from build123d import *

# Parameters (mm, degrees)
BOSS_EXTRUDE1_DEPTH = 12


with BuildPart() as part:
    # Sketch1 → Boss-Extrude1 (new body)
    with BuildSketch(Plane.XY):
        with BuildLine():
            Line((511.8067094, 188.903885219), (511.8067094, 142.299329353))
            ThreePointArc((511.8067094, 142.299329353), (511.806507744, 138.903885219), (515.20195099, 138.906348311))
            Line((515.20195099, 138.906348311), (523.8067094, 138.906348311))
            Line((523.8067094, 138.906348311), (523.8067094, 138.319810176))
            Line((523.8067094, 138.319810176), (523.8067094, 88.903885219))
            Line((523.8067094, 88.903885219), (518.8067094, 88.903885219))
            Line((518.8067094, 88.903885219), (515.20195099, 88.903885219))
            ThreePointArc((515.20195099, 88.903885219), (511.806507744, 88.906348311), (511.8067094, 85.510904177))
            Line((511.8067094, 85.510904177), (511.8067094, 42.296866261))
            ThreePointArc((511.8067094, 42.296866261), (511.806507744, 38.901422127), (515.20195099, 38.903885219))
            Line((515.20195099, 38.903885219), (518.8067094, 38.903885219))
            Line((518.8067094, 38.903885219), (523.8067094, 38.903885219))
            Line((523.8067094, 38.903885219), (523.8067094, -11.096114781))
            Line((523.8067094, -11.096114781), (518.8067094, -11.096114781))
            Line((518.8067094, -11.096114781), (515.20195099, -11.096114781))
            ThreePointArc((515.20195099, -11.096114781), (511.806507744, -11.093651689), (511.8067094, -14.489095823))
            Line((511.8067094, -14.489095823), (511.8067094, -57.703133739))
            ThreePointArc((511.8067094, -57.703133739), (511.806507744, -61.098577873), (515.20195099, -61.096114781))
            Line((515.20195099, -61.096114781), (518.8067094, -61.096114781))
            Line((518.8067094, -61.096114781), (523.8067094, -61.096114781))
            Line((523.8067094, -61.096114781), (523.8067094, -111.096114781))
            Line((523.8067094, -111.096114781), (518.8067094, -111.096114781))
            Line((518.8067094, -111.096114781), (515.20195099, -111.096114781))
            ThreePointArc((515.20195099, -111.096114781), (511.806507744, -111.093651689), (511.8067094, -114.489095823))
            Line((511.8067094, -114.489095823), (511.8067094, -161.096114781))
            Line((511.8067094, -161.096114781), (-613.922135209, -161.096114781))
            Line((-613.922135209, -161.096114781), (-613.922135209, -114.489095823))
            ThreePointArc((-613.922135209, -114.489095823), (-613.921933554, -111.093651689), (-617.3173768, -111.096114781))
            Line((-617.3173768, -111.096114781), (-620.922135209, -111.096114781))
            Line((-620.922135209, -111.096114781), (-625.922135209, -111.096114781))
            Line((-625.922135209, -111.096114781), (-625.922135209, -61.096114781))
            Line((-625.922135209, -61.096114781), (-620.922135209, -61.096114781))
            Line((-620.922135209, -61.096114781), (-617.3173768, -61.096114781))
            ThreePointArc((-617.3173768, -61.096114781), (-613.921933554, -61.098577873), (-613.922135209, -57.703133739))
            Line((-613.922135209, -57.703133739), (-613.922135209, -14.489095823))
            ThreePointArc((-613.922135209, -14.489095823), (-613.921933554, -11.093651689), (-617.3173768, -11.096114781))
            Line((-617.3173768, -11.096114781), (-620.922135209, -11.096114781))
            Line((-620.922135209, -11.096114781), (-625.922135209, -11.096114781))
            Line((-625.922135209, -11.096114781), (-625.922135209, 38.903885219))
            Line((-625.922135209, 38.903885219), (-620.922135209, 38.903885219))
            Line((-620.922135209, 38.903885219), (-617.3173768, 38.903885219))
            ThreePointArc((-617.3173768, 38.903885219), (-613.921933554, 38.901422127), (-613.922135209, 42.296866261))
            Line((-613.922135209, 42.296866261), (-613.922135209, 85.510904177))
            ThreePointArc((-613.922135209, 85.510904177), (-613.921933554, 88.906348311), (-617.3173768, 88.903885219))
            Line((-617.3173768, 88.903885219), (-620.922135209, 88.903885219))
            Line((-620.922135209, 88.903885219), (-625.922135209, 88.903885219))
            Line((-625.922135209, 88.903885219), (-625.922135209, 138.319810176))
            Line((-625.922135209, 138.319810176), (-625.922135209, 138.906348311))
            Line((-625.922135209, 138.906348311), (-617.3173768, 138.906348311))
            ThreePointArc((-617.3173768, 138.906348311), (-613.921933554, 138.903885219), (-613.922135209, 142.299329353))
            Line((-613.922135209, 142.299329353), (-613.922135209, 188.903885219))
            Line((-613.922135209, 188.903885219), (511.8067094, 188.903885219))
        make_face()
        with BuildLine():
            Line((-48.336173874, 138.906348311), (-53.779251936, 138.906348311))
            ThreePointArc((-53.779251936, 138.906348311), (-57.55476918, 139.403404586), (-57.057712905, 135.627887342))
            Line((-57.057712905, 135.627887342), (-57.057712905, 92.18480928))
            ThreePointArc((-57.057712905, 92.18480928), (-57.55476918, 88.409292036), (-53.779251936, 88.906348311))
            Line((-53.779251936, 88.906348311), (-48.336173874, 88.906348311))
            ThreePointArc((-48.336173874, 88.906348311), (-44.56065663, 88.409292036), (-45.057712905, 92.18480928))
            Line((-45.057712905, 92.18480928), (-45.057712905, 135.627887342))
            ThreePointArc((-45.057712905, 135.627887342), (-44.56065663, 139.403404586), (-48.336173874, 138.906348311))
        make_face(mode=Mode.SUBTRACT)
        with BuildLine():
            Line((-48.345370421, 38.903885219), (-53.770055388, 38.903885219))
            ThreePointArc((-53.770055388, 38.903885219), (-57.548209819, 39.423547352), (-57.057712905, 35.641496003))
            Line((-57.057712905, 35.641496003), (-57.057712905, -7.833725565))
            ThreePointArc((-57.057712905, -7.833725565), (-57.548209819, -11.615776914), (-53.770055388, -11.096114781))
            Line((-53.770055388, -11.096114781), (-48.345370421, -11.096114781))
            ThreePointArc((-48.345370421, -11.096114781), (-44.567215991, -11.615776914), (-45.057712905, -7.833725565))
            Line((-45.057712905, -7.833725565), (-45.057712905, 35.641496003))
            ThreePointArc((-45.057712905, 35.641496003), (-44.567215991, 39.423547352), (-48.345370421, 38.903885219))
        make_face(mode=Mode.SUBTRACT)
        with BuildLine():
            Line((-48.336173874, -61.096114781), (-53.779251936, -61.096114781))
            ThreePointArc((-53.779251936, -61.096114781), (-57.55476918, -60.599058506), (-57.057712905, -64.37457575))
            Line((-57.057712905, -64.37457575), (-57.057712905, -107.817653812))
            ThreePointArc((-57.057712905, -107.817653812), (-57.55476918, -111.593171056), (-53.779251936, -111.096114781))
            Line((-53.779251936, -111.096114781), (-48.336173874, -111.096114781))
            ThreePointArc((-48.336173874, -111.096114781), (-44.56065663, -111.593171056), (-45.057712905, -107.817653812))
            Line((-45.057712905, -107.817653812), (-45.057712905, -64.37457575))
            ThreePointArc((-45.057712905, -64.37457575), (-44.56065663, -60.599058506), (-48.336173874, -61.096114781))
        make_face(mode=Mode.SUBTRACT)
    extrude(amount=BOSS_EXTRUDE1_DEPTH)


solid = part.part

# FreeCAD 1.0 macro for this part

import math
import FreeCAD as App
import Part
import Sketcher

V = App.Vector

doc = App.newDocument("Part")
body = doc.addObject("PartDesign::Body", "Body")

# Sketch on XY plane
sketch1 = body.newObject("Sketcher::SketchObject", "Sketch")
sketch1.AttachmentSupport = (doc.getObject("XY_Plane"), [""])
sketch1.MapMode = "FlatFace"
sketch1.addGeometry([
    Part.LineSegment(V(511.806709, 142.299329, 0), V(511.806709, 188.903885, 0)),  # 0
    Part.LineSegment(V(511.806709, 188.903885, 0), V(-613.922135, 188.903885, 0)),  # 1
    Part.LineSegment(V(-613.922135, 188.903885, 0), V(-613.922135, 142.299329, 0)),  # 2
    Part.ArcOfCircle(Part.Circle(V(-615.618425, 140.601507, 0), V(0, 0, 1), 2.4), math.radians(-135.064046), math.radians(45.025886)),  # 3
    Part.LineSegment(V(-617.317377, 138.906348, 0), V(-625.922135, 138.906348, 0)),  # 4
    Part.LineSegment(V(-625.922135, 138.906348, 0), V(-625.922135, 88.903885, 0)),  # 5
    Part.LineSegment(V(-625.922135, 88.903885, 0), V(-617.317377, 88.903885, 0)),  # 6
    Part.ArcOfCircle(Part.Circle(V(-615.618425, 87.208727, 0), V(0, 0, 1), 2.4), math.radians(-45.025886), math.radians(135.064046)),  # 7
    Part.LineSegment(V(-613.922135, 85.510904, 0), V(-613.922135, 42.296866, 0)),  # 8
    Part.ArcOfCircle(Part.Circle(V(-615.618425, 40.599043, 0), V(0, 0, 1), 2.4), math.radians(-135.064046), math.radians(45.025886)),  # 9
    Part.LineSegment(V(-617.317377, 38.903885, 0), V(-625.922135, 38.903885, 0)),  # 10
    Part.LineSegment(V(-625.922135, 38.903885, 0), V(-625.922135, -11.096115, 0)),  # 11
    Part.LineSegment(V(-625.922135, -11.096115, 0), V(-617.317377, -11.096115, 0)),  # 12
    Part.ArcOfCircle(Part.Circle(V(-615.618425, -12.791273, 0), V(0, 0, 1), 2.4), math.radians(-45.025886), math.radians(135.064046)),  # 13
    Part.LineSegment(V(-613.922135, -14.489096, 0), V(-613.922135, -57.703134, 0)),  # 14
    Part.ArcOfCircle(Part.Circle(V(-615.618425, -59.400957, 0), V(0, 0, 1), 2.4), math.radians(-135.064046), math.radians(45.025886)),  # 15
    Part.LineSegment(V(-617.317377, -61.096115, 0), V(-625.922135, -61.096115, 0)),  # 16
    Part.LineSegment(V(-625.922135, -61.096115, 0), V(-625.922135, -111.096115, 0)),  # 17
    Part.LineSegment(V(-625.922135, -111.096115, 0), V(-617.317377, -111.096115, 0)),  # 18
    Part.ArcOfCircle(Part.Circle(V(-615.618425, -112.791273, 0), V(0, 0, 1), 2.4), math.radians(-45.025886), math.radians(135.064046)),  # 19
    Part.LineSegment(V(-613.922135, -114.489096, 0), V(-613.922135, -161.096115, 0)),  # 20
    Part.LineSegment(V(-613.922135, -161.096115, 0), V(511.806709, -161.096115, 0)),  # 21
    Part.LineSegment(V(511.806709, -161.096115, 0), V(511.806709, -114.489096, 0)),  # 22
    Part.ArcOfCircle(Part.Circle(V(513.502999, -112.791273, 0), V(0, 0, 1), 2.4), math.radians(44.935954), math.radians(225.025886)),  # 23
    Part.LineSegment(V(515.201951, -111.096115, 0), V(523.806709, -111.096115, 0)),  # 24
    Part.LineSegment(V(523.806709, -111.096115, 0), V(523.806709, -61.096115, 0)),  # 25
    Part.LineSegment(V(523.806709, -61.096115, 0), V(515.201951, -61.096115, 0)),  # 26
    Part.ArcOfCircle(Part.Circle(V(513.502999, -59.400957, 0), V(0, 0, 1), 2.4), math.radians(134.974114), math.radians(315.064046)),  # 27
    Part.LineSegment(V(511.806709, -57.703134, 0), V(511.806709, -14.489096, 0)),  # 28
    Part.ArcOfCircle(Part.Circle(V(513.502999, -12.791273, 0), V(0, 0, 1), 2.4), math.radians(44.935954), math.radians(225.025886)),  # 29
    Part.LineSegment(V(515.201951, -11.096115, 0), V(523.806709, -11.096115, 0)),  # 30
    Part.LineSegment(V(523.806709, -11.096115, 0), V(523.806709, 38.903885, 0)),  # 31
    Part.LineSegment(V(523.806709, 38.903885, 0), V(515.201951, 38.903885, 0)),  # 32
    Part.ArcOfCircle(Part.Circle(V(513.502999, 40.599043, 0), V(0, 0, 1), 2.4), math.radians(134.974114), math.radians(315.064046)),  # 33
    Part.LineSegment(V(511.806709, 42.296866, 0), V(511.806709, 85.510904, 0)),  # 34
    Part.ArcOfCircle(Part.Circle(V(513.502999, 87.208727, 0), V(0, 0, 1), 2.4), math.radians(44.935954), math.radians(225.025886)),  # 35
    Part.LineSegment(V(515.201951, 88.903885, 0), V(523.806709, 88.903885, 0)),  # 36
    Part.LineSegment(V(523.806709, 88.903885, 0), V(523.806709, 138.906348, 0)),  # 37
    Part.LineSegment(V(523.806709, 138.906348, 0), V(515.201951, 138.906348, 0)),  # 38
    Part.ArcOfCircle(Part.Circle(V(513.502999, 140.601507, 0), V(0, 0, 1), 2.4), math.radians(134.974114), math.radians(315.064046)),  # 39
    Part.ArcOfCircle(Part.Circle(V(-46.257713, 37.719957, 0), V(0, 0, 1), 2.4), math.radians(-60), math.radians(150.442061)),  # 40
    Part.LineSegment(V(-45.057713, 35.641496, 0), V(-45.057713, -7.833726, 0)),  # 41
    Part.ArcOfCircle(Part.Circle(V(-46.257713, -9.912187, 0), V(0, 0, 1), 2.4), math.radians(-150.442061), math.radians(60)),  # 42
    Part.LineSegment(V(-48.34537, -11.096115, 0), V(-53.770055, -11.096115, 0)),  # 43
    Part.ArcOfCircle(Part.Circle(V(-55.857713, -9.912187, 0), V(0, 0, 1), 2.4), math.radians(120), math.radians(330.442061)),  # 44
    Part.LineSegment(V(-57.057713, -7.833726, 0), V(-57.057713, 35.641496, 0)),  # 45
    Part.ArcOfCircle(Part.Circle(V(-55.857713, 37.719957, 0), V(0, 0, 1), 2.4), math.radians(29.557939), math.radians(240)),  # 46
    Part.LineSegment(V(-53.770055, 38.903885, 0), V(-48.34537, 38.903885, 0)),  # 47
    Part.ArcOfCircle(Part.Circle(V(-46.257713, -62.296115, 0), V(0, 0, 1), 2.4), math.radians(-60), math.radians(150)),  # 48
    Part.LineSegment(V(-45.057713, -64.374576, 0), V(-45.057713, -107.817654, 0)),  # 49
    Part.ArcOfCircle(Part.Circle(V(-46.257713, -109.896115, 0), V(0, 0, 1), 2.4), math.radians(-150), math.radians(60)),  # 50
    Part.LineSegment(V(-48.336174, -111.096115, 0), V(-53.779252, -111.096115, 0)),  # 51
    Part.ArcOfCircle(Part.Circle(V(-55.857713, -109.896115, 0), V(0, 0, 1), 2.4), math.radians(120), math.radians(330)),  # 52
    Part.LineSegment(V(-57.057713, -107.817654, 0), V(-57.057713, -64.374576, 0)),  # 53
    Part.ArcOfCircle(Part.Circle(V(-55.857713, -62.296115, 0), V(0, 0, 1), 2.4), math.radians(30), math.radians(240)),  # 54
    Part.LineSegment(V(-53.779252, -61.096115, 0), V(-48.336174, -61.096115, 0)),  # 55
    Part.ArcOfCircle(Part.Circle(V(-46.257713, 137.706348, 0), V(0, 0, 1), 2.4), math.radians(-60), math.radians(150)),  # 56
    Part.LineSegment(V(-45.057713, 135.627887, 0), V(-45.057713, 92.184809, 0)),  # 57
    Part.ArcOfCircle(Part.Circle(V(-46.257713, 90.106348, 0), V(0, 0, 1), 2.4), math.radians(-150), math.radians(60)),  # 58
    Part.LineSegment(V(-48.336174, 88.906348, 0), V(-53.779252, 88.906348, 0)),  # 59
    Part.ArcOfCircle(Part.Circle(V(-55.857713, 90.106348, 0), V(0, 0, 1), 2.4), math.radians(120), math.radians(330)),  # 60
    Part.LineSegment(V(-57.057713, 92.184809, 0), V(-57.057713, 135.627887, 0)),  # 61
    Part.ArcOfCircle(Part.Circle(V(-55.857713, 137.706348, 0), V(0, 0, 1), 2.4), math.radians(30), math.radians(240)),  # 62
    Part.LineSegment(V(-53.779252, 138.906348, 0), V(-48.336174, 138.906348, 0)),  # 63
], False)
sketch1.addConstraint([
    Sketcher.Constraint("Coincident", 0, 2, 1, 1),
    Sketcher.Constraint("Coincident", 1, 2, 2, 1),
    Sketcher.Constraint("Coincident", 2, 2, 3, 2),
    Sketcher.Constraint("Coincident", 3, 1, 4, 1),
    Sketcher.Constraint("Coincident", 4, 2, 5, 1),
    Sketcher.Constraint("Coincident", 5, 2, 6, 1),
    Sketcher.Constraint("Coincident", 6, 2, 7, 2),
    Sketcher.Constraint("Coincident", 7, 1, 8, 1),
    Sketcher.Constraint("Coincident", 8, 2, 9, 2),
    Sketcher.Constraint("Coincident", 9, 1, 10, 1),
    Sketcher.Constraint("Coincident", 10, 2, 11, 1),
    Sketcher.Constraint("Coincident", 11, 2, 12, 1),
    Sketcher.Constraint("Coincident", 12, 2, 13, 2),
    Sketcher.Constraint("Coincident", 13, 1, 14, 1),
    Sketcher.Constraint("Coincident", 14, 2, 15, 2),
    Sketcher.Constraint("Coincident", 15, 1, 16, 1),
    Sketcher.Constraint("Coincident", 16, 2, 17, 1),
    Sketcher.Constraint("Coincident", 17, 2, 18, 1),
    Sketcher.Constraint("Coincident", 18, 2, 19, 2),
    Sketcher.Constraint("Coincident", 19, 1, 20, 1),
    Sketcher.Constraint("Coincident", 20, 2, 21, 1),
    Sketcher.Constraint("Coincident", 21, 2, 22, 1),
    Sketcher.Constraint("Coincident", 22, 2, 23, 2),
    Sketcher.Constraint("Coincident", 23, 1, 24, 1),
    Sketcher.Constraint("Coincident", 24, 2, 25, 1),
    Sketcher.Constraint("Coincident", 25, 2, 26, 1),
    Sketcher.Constraint("Coincident", 26, 2, 27, 2),
    Sketcher.Constraint("Coincident", 27, 1, 28, 1),
    Sketcher.Constraint("Coincident", 28, 2, 29, 2),
    Sketcher.Constraint("Coincident", 29, 1, 30, 1),
    Sketcher.Constraint("Coincident", 30, 2, 31, 1),
    Sketcher.Constraint("Coincident", 31, 2, 32, 1),
    Sketcher.Constraint("Coincident", 32, 2, 33, 2),
    Sketcher.Constraint("Coincident", 33, 1, 34, 1),
    Sketcher.Constraint("Coincident", 34, 2, 35, 2),
    Sketcher.Constraint("Coincident", 35, 1, 36, 1),
    Sketcher.Constraint("Coincident", 36, 2, 37, 1),
    Sketcher.Constraint("Coincident", 37, 2, 38, 1),
    Sketcher.Constraint("Coincident", 38, 2, 39, 2),
    Sketcher.Constraint("Coincident", 39, 1, 0, 1),
    Sketcher.Constraint("Coincident", 40, 1, 41, 1),
    Sketcher.Constraint("Coincident", 41, 2, 42, 2),
    Sketcher.Constraint("Coincident", 42, 1, 43, 1),
    Sketcher.Constraint("Coincident", 43, 2, 44, 2),
    Sketcher.Constraint("Coincident", 44, 1, 45, 1),
    Sketcher.Constraint("Coincident", 45, 2, 46, 2),
    Sketcher.Constraint("Coincident", 46, 1, 47, 1),
    Sketcher.Constraint("Coincident", 47, 2, 40, 2),
    Sketcher.Constraint("Coincident", 48, 1, 49, 1),
    Sketcher.Constraint("Coincident", 49, 2, 50, 2),
    Sketcher.Constraint("Coincident", 50, 1, 51, 1),
    Sketcher.Constraint("Coincident", 51, 2, 52, 2),
    Sketcher.Constraint("Coincident", 52, 1, 53, 1),
    Sketcher.Constraint("Coincident", 53, 2, 54, 2),
    Sketcher.Constraint("Coincident", 54, 1, 55, 1),
    Sketcher.Constraint("Coincident", 55, 2, 48, 2),
    Sketcher.Constraint("Coincident", 56, 1, 57, 1),
    Sketcher.Constraint("Coincident", 57, 2, 58, 2),
    Sketcher.Constraint("Coincident", 58, 1, 59, 1),
    Sketcher.Constraint("Coincident", 59, 2, 60, 2),
    Sketcher.Constraint("Coincident", 60, 1, 61, 1),
    Sketcher.Constraint("Coincident", 61, 2, 62, 2),
    Sketcher.Constraint("Coincident", 62, 1, 63, 1),
    Sketcher.Constraint("Coincident", 63, 2, 56, 2),
    Sketcher.Constraint("Vertical", 0),
    Sketcher.Constraint("Horizontal", 1),
    Sketcher.Constraint("Vertical", 2),
    Sketcher.Constraint("Horizontal", 4),
    Sketcher.Constraint("Vertical", 5),
    Sketcher.Constraint("Horizontal", 6),
    Sketcher.Constraint("Vertical", 8),
    Sketcher.Constraint("Horizontal", 10),
    Sketcher.Constraint("Vertical", 11),
    Sketcher.Constraint("Horizontal", 12),
    Sketcher.Constraint("Vertical", 14),
    Sketcher.Constraint("Horizontal", 16),
    Sketcher.Constraint("Vertical", 17),
    Sketcher.Constraint("Horizontal", 18),
    Sketcher.Constraint("Vertical", 20),
    Sketcher.Constraint("Horizontal", 21),
    Sketcher.Constraint("Vertical", 22),
    Sketcher.Constraint("Horizontal", 24),
    Sketcher.Constraint("Vertical", 25),
    Sketcher.Constraint("Horizontal", 26),
    Sketcher.Constraint("Vertical", 28),
    Sketcher.Constraint("Horizontal", 30),
    Sketcher.Constraint("Vertical", 31),
    Sketcher.Constraint("Horizontal", 32),
    Sketcher.Constraint("Vertical", 34),
    Sketcher.Constraint("Horizontal", 36),
    Sketcher.Constraint("Vertical", 37),
    Sketcher.Constraint("Horizontal", 38),
    Sketcher.Constraint("Vertical", 41),
    Sketcher.Constraint("Horizontal", 43),
    Sketcher.Constraint("Vertical", 45),
    Sketcher.Constraint("Horizontal", 47),
    Sketcher.Constraint("Vertical", 49),
    Sketcher.Constraint("Horizontal", 51),
    Sketcher.Constraint("Vertical", 53),
    Sketcher.Constraint("Horizontal", 55),
    Sketcher.Constraint("Vertical", 57),
    Sketcher.Constraint("Horizontal", 59),
    Sketcher.Constraint("Vertical", 61),
    Sketcher.Constraint("Horizontal", 63),
    Sketcher.Constraint("Radius", 3, 2.4),
    Sketcher.Constraint("Radius", 7, 2.4),
    Sketcher.Constraint("Radius", 9, 2.4),
    Sketcher.Constraint("Radius", 13, 2.4),
    Sketcher.Constraint("Radius", 15, 2.4),
    Sketcher.Constraint("Radius", 19, 2.4),
    Sketcher.Constraint("Radius", 23, 2.4),
    Sketcher.Constraint("Radius", 27, 2.4),
    Sketcher.Constraint("Radius", 29, 2.4),
    Sketcher.Constraint("Radius", 33, 2.4),
    Sketcher.Constraint("Radius", 35, 2.4),
    Sketcher.Constraint("Radius", 39, 2.4),
    Sketcher.Constraint("Radius", 40, 2.4),
    Sketcher.Constraint("Radius", 42, 2.4),
    Sketcher.Constraint("Radius", 44, 2.4),
    Sketcher.Constraint("Radius", 46, 2.4),
    Sketcher.Constraint("Radius", 48, 2.4),
    Sketcher.Constraint("Radius", 50, 2.4),
    Sketcher.Constraint("Radius", 52, 2.4),
    Sketcher.Constraint("Radius", 54, 2.4),
    Sketcher.Constraint("Radius", 56, 2.4),
    Sketcher.Constraint("Radius", 58, 2.4),
    Sketcher.Constraint("Radius", 60, 2.4),
    Sketcher.Constraint("Radius", 62, 2.4),
    Sketcher.Constraint("DistanceY", 11, 2, 11, 1, 50.0),
    Sketcher.Constraint("DistanceY", 17, 2, 17, 1, 50.0),
    Sketcher.Constraint("DistanceY", 25, 1, 25, 2, 50.0),
    Sketcher.Constraint("DistanceY", 31, 1, 31, 2, 50.0),
    Sketcher.Constraint("DistanceX", -1, 1, 23, 3, 513.502999),
    Sketcher.Constraint("DistanceX", -1, 1, 27, 3, 513.502999),
    Sketcher.Constraint("DistanceX", -1, 1, 29, 3, 513.502999),
    Sketcher.Constraint("DistanceX", -1, 1, 33, 3, 513.502999),
    Sketcher.Constraint("DistanceX", -1, 1, 35, 3, 513.502999),
    Sketcher.Constraint("DistanceX", -1, 1, 39, 3, 513.502999),
    Sketcher.Constraint("DistanceX", 4, 2, 4, 1, 8.604758),
    Sketcher.Constraint("DistanceX", 6, 1, 6, 2, 8.604758),
    Sketcher.Constraint("DistanceX", 10, 2, 10, 1, 8.604758),
    Sketcher.Constraint("DistanceX", 12, 1, 12, 2, 8.604758),
    Sketcher.Constraint("DistanceX", 16, 2, 16, 1, 8.604758),
    Sketcher.Constraint("DistanceX", 18, 1, 18, 2, 8.604758),
    Sketcher.Constraint("DistanceX", 24, 1, 24, 2, 8.604758),
    Sketcher.Constraint("DistanceX", 26, 2, 26, 1, 8.604758),
    Sketcher.Constraint("DistanceX", 30, 1, 30, 2, 8.604758),
    Sketcher.Constraint("DistanceX", 32, 2, 32, 1, 8.604758),
    Sketcher.Constraint("DistanceX", 36, 1, 36, 2, 8.604758),
    Sketcher.Constraint("DistanceX", 38, 2, 38, 1, 8.604758),
    Sketcher.Constraint("DistanceX", 51, 2, 51, 1, 5.443078),
    Sketcher.Constraint("DistanceX", 55, 1, 55, 2, 5.443078),
    Sketcher.Constraint("DistanceX", 59, 2, 59, 1, 5.443078),
    Sketcher.Constraint("DistanceX", 63, 1, 63, 2, 5.443078),
    Sketcher.Constraint("DistanceY", 20, 2, 20, 1, 46.607019),
    Sketcher.Constraint("DistanceY", 22, 1, 22, 2, 46.607019),
    Sketcher.Constraint("DistanceY", 41, 2, 41, 1, 43.475222),
    Sketcher.Constraint("DistanceY", 45, 1, 45, 2, 43.475222),
    Sketcher.Constraint("DistanceY", 49, 2, 49, 1, 43.443078),
    Sketcher.Constraint("DistanceY", 53, 1, 53, 2, 43.443078),
    Sketcher.Constraint("DistanceY", 57, 2, 57, 1, 43.443078),
    Sketcher.Constraint("DistanceY", 61, 1, 61, 2, 43.443078),
    Sketcher.Constraint("DistanceX", 1, 2, 1, 1, 1125.728845),
    Sketcher.Constraint("DistanceX", 21, 1, 21, 2, 1125.728845),
    Sketcher.Constraint("DistanceX", 43, 2, 43, 1, 5.424685),
    Sketcher.Constraint("DistanceX", 47, 1, 47, 2, 5.424685),
    Sketcher.Constraint("DistanceY", 0, 1, 0, 2, 46.604556),
    Sketcher.Constraint("DistanceY", 2, 2, 2, 1, 46.604556),
    Sketcher.Constraint("DistanceY", 5, 2, 5, 1, 50.002463),
    Sketcher.Constraint("DistanceY", 8, 2, 8, 1, 43.214038),
    Sketcher.Constraint("DistanceY", 14, 2, 14, 1, 43.214038),
    Sketcher.Constraint("DistanceY", 28, 1, 28, 2, 43.214038),
    Sketcher.Constraint("DistanceY", 34, 1, 34, 2, 43.214038),
    Sketcher.Constraint("DistanceY", 37, 1, 37, 2, 50.002463),
    Sketcher.Constraint("DistanceY", -1, 1, 56, 3, 137.706348),
    Sketcher.Constraint("DistanceY", -1, 1, 58, 3, 90.106348),
    Sketcher.Constraint("DistanceY", -1, 1, 60, 3, 90.106348),
    Sketcher.Constraint("DistanceY", -1, 1, 62, 3, 137.706348),
    Sketcher.Constraint("DistanceX", -1, 1, 0, 2, 511.806709),
    Sketcher.Constraint("DistanceY", -1, 1, 2, 2, 142.299329),
    Sketcher.Constraint("DistanceY", -1, 1, 3, 1, 138.906348),
    Sketcher.Constraint("DistanceX", -1, 1, 21, 2, 511.806709),
    Sketcher.Constraint("DistanceX", -1, 1, 23, 1, 515.201951),
    Sketcher.Constraint("DistanceX", -1, 1, 27, 1, 511.806709),
    Sketcher.Constraint("DistanceX", -1, 1, 29, 1, 515.201951),
    Sketcher.Constraint("DistanceX", -1, 1, 33, 1, 511.806709),
    Sketcher.Constraint("DistanceX", -1, 1, 35, 1, 515.201951),
    Sketcher.Constraint("DistanceX", 42, 1, -1, 1, 48.34537),
    Sketcher.Constraint("DistanceX", 47, 2, -1, 1, 48.34537),
    Sketcher.Constraint("DistanceX", 51, 2, -1, 1, 53.779252),
    Sketcher.Constraint("DistanceX", 54, 1, -1, 1, 53.779252),
    Sketcher.Constraint("DistanceY", -1, 1, 57, 2, 92.184809),
    Sketcher.Constraint("DistanceY", -1, 1, 58, 1, 88.906348),
    Sketcher.Constraint("DistanceX", 59, 2, -1, 1, 53.779252),
    Sketcher.Constraint("DistanceY", -1, 1, 60, 1, 92.184809),
    Sketcher.Constraint("DistanceX", 3, 3, -1, 1, 615.618425),
    Sketcher.Constraint("DistanceX", 7, 3, -1, 1, 615.618425),
    Sketcher.Constraint("DistanceX", 9, 3, -1, 1, 615.618425),
    Sketcher.Constraint("DistanceY", -1, 1, 9, 3, 40.599043),
    Sketcher.Constraint("DistanceX", 13, 3, -1, 1, 615.618425),
    Sketcher.Constraint("DistanceY", 13, 3, -1, 1, 12.791273),
    Sketcher.Constraint("DistanceX", 15, 3, -1, 1, 615.618425),
    Sketcher.Constraint("DistanceY", 15, 3, -1, 1, 59.400957),
    Sketcher.Constraint("DistanceX", 19, 3, -1, 1, 615.618425),
    Sketcher.Constraint("DistanceX", 40, 3, -1, 1, 46.257713),
    Sketcher.Constraint("DistanceY", -1, 1, 40, 3, 37.719957),
    Sketcher.Constraint("DistanceX", 42, 3, -1, 1, 46.257713),
    Sketcher.Constraint("DistanceY", 42, 3, -1, 1, 9.912187),
    Sketcher.Constraint("DistanceX", 44, 3, -1, 1, 55.857713),
    Sketcher.Constraint("DistanceX", 46, 3, -1, 1, 55.857713),
    Sketcher.Constraint("DistanceX", 48, 3, -1, 1, 46.257713),
    Sketcher.Constraint("DistanceY", 48, 3, -1, 1, 62.296115),
    Sketcher.Constraint("DistanceX", 50, 3, -1, 1, 46.257713),
    Sketcher.Constraint("DistanceY", 50, 3, -1, 1, 109.896115),
    Sketcher.Constraint("DistanceX", 52, 3, -1, 1, 55.857713),
    Sketcher.Constraint("DistanceX", 54, 3, -1, 1, 55.857713),
])
pad1 = body.newObject("PartDesign::Pad", "Pad")
pad1.Profile = sketch1
pad1.Length = 12

doc.recompute()
